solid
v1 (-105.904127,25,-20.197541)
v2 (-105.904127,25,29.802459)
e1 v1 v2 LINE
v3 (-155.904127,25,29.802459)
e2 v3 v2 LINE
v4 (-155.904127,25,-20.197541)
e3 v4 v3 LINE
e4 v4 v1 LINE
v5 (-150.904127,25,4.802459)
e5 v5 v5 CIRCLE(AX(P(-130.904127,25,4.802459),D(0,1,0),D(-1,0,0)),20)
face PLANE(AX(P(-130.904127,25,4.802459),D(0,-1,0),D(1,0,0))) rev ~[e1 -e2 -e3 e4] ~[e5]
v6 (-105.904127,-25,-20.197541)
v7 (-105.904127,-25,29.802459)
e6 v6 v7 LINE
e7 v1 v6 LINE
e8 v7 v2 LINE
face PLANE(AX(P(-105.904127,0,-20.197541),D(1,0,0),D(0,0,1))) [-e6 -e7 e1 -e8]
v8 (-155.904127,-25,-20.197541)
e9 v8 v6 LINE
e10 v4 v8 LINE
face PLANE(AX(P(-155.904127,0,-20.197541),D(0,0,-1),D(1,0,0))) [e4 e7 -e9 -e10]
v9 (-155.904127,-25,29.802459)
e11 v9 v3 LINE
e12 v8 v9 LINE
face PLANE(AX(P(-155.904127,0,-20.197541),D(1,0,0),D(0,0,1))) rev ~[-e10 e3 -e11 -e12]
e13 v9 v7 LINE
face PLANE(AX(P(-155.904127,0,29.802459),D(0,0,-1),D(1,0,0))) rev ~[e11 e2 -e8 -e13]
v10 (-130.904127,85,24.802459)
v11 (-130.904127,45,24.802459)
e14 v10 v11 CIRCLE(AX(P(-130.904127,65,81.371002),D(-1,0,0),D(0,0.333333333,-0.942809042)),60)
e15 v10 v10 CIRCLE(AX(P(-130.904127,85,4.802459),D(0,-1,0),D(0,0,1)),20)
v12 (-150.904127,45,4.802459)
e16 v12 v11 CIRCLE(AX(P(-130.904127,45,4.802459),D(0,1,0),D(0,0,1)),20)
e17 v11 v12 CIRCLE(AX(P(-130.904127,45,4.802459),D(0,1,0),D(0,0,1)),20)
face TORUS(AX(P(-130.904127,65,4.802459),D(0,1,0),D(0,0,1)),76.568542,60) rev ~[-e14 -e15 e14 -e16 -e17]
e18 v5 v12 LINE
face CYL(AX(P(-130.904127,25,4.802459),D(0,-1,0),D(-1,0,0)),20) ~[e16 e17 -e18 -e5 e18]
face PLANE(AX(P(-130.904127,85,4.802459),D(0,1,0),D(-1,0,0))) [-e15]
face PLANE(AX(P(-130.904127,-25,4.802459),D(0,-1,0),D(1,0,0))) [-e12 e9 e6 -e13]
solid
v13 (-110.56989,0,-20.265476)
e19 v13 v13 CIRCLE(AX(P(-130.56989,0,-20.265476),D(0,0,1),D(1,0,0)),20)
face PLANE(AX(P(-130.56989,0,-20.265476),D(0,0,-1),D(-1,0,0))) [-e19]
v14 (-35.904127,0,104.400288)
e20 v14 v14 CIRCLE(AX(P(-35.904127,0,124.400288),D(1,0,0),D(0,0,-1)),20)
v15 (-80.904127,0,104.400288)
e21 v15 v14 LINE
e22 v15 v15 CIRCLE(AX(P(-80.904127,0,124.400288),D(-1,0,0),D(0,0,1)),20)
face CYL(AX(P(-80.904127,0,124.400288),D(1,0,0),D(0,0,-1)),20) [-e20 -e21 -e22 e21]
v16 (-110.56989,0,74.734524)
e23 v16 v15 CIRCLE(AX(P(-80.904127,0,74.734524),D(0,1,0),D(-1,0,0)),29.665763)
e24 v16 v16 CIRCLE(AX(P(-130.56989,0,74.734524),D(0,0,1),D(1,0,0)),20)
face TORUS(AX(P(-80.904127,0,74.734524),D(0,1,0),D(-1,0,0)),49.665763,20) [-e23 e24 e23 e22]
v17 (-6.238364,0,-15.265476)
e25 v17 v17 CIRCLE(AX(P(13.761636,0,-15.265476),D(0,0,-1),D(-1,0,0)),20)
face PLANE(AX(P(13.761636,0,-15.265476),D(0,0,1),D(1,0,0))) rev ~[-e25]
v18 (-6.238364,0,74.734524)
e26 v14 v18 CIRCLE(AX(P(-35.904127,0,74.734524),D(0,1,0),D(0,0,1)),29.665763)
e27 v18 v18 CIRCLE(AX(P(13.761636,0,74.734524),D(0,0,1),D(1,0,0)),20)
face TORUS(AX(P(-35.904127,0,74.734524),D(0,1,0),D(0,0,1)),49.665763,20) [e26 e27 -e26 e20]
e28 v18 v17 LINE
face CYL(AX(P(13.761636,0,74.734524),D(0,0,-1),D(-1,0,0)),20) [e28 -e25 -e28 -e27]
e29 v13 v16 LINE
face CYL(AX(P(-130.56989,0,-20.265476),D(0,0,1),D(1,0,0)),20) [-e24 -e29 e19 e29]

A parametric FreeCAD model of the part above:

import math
import FreeCAD as App
import Part
import Sketcher
Q = App.Units.Quantity

doc = App.newDocument("Part")
body = doc.addObject("PartDesign::Body", "Body")

sketch1 = doc.addObject("Sketcher::SketchObject", "Sketch")
body.addObject(sketch1)
sketch1.AttachmentSupport = (doc.XZ_Plane, [""])
sketch1.MapMode = "FlatFace"
sketch1.addGeometry([
    Part.LineSegment(App.Vector(-156, 30, 0), App.Vector(-156, -20, 0)),
    Part.LineSegment(App.Vector(-156, -20, 0), App.Vector(-106, -20, 0)),
    Part.LineSegment(App.Vector(-106, -20, 0), App.Vector(-106, 30, 0)),
    Part.LineSegment(App.Vector(-106, 30, 0), App.Vector(-156, 30, 0)),
], False)
sketch1.addConstraint([
    Sketcher.Constraint("Coincident", 0, 2, 1, 1),
    Sketcher.Constraint("Coincident", 1, 2, 2, 1),
    Sketcher.Constraint("Coincident", 2, 2, 3, 1),
    Sketcher.Constraint("Coincident", 3, 2, 0, 1),
    Sketcher.Constraint("Vertical", 0),
    Sketcher.Constraint("Horizontal", 1),
    Sketcher.Constraint("Vertical", 2),
    Sketcher.Constraint("Horizontal", 3),
    Sketcher.Constraint("Equal", 3, 0),
    Sketcher.Constraint("DistanceX", 1, 1, 1, 2, Q("50 mm")),
    Sketcher.Constraint("DistanceY", 0, 2, -1, 1, Q("20.197541 mm")),
    Sketcher.Constraint("DistanceX", 0, 2, -1, 1, Q("155.904127 mm")),
])
pad1 = doc.addObject("PartDesign::Pad", "Pad")
body.addObject(pad1)
pad1.Profile = sketch1
pad1.Type = "TwoLengths"
pad1.Length = 25
pad1.Length2 = 25

sketch2 = doc.addObject("Sketcher::SketchObject", "Sketch001")
body.addObject(sketch2)
sketch2.AttachmentSupport = (doc.XZ_Plane, [""])
sketch2.MapMode = "FlatFace"
sketch2.AttachmentOffset = App.Placement(App.Vector(0, 0, -25), App.Rotation())
sketch2.addGeometry(Part.Circle(App.Vector(-131, 5, 0), App.Vector(0, 0, 1), 20), False)
sketch2.addConstraint([
    Sketcher.Constraint("Diameter", 0, Q("40 mm")),
    Sketcher.Constraint("DistanceY", -1, 1, 0, 3, Q("4.802459 mm")),
    Sketcher.Constraint("DistanceX", 0, 3, -1, 1, Q("130.904127 mm")),
])
pad2 = doc.addObject("PartDesign::Pad", "Pad001")
body.addObject(pad2)
pad2.Profile = sketch2
pad2.Length = 60
pad2.Reversed = True

sketch3 = doc.addObject("Sketcher::SketchObject", "Sketch002")
body.addObject(sketch3)
sketch3.AttachmentSupport = (doc.YZ_Plane, [""])
sketch3.MapMode = "FlatFace"
sketch3.AttachmentOffset = App.Placement(App.Vector(0, 0, -130.904127), App.Rotation())
sketch3.addGeometry([
    Part.LineSegment(App.Vector(45, 25, 0), App.Vector(85, 25, 0)),
    Part.ArcOfCircle(Part.Circle(App.Vector(65, 81, 0), App.Vector(0, 0, 1), 60), math.radians(-109), math.radians(-71)),
], False)
sketch3.addGeometry(Part.LineSegment(App.Vector(45, 5, 0), App.Vector(85, 5, 0)), True)
sketch3.addConstraint([
    Sketcher.Constraint("Coincident", 0, 1, 1, 1),
    Sketcher.Constraint("Coincident", 1, 2, 0, 2),
    Sketcher.Constraint("Horizontal", 0),
    Sketcher.Constraint("Horizontal", 2),
    Sketcher.Constraint("Vertical", 0, 1, 2, 1),
    Sketcher.Constraint("Vertical", 1, 2, 2, 2),
    Sketcher.Constraint("Radius", 1, Q("60 mm")),
    Sketcher.Constraint("DistanceX", 0, 1, 0, 2, Q("40 mm")),
    Sketcher.Constraint("DistanceX", -1, 1, 1, 3, Q("65 mm")),
    Sketcher.Constraint("DistanceY", 2, 1, 0, 1, Q("20 mm")),
    Sketcher.Constraint("DistanceY", -1, 1, 1, 3, Q("81.371002 mm")),
])
groove = doc.addObject("PartDesign::Groove", "Groove")
body.addObject(groove)
groove.Profile = sketch3
groove.ReferenceAxis = (sketch3, ["Axis0"])
groove.Angle = 360
body2 = doc.addObject("PartDesign::Body", "Body001")

sketch4 = doc.addObject("Sketcher::SketchObject", "Sketch003")
body2.addObject(sketch4)
sketch4.AttachmentSupport = (doc.getObject("XY_Plane001"), [""])
sketch4.MapMode = "FlatFace"
sketch4.AttachmentOffset = App.Placement(App.Vector(0, 0, -20.197541), App.Rotation())
sketch4.addGeometry(Part.Circle(App.Vector(-131, 0, 0), App.Vector(0, 0, 1), 20), False)
sketch4.addConstraint([
    Sketcher.Constraint("PointOnObject", 0, 3, -1),
    Sketcher.Constraint("Diameter", 0, Q("40 mm")),
    Sketcher.Constraint("DistanceX", 0, 3, -1, 1, Q("130.56989 mm")),
])

sketch5 = doc.addObject("Sketcher::SketchObject", "Sketch004")
body2.addObject(sketch5)
sketch5.AttachmentSupport = (doc.getObject("XZ_Plane001"), [""])
sketch5.MapMode = "FlatFace"
sketch5.addGeometry([
    Part.LineSegment(App.Vector(-131, -20, 0), App.Vector(-131, 75, 0)),
    Part.ArcOfCircle(Part.Circle(App.Vector(-81, 75, 0), App.Vector(0, 0, 1), 50), math.radians(90), math.radians(180)),
    Part.LineSegment(App.Vector(-81, 125, 0), App.Vector(-36, 125, 0)),
    Part.ArcOfCircle(Part.Circle(App.Vector(-36, 75, 0), App.Vector(0, 0, 1), 50), math.radians(0), math.radians(90)),
    Part.LineSegment(App.Vector(14, 75, 0), App.Vector(14, -15, 0)),
], False)
sketch5.addConstraint([
    Sketcher.Constraint("Tangent", 0, 2, 1, 2),
    Sketcher.Constraint("Tangent", 1, 1, 2, 1),
    Sketcher.Constraint("Tangent", 2, 2, 3, 2),
    Sketcher.Constraint("Tangent", 3, 1, 4, 1),
    Sketcher.Constraint("Vertical", 0),
    Sketcher.Constraint("Horizontal", 2),
    Sketcher.Constraint("Vertical", 4),
    Sketcher.Constraint("Equal", 1, 3),
    Sketcher.Constraint("Radius", 1, Q("50 mm")),
    Sketcher.Constraint("DistanceX", 2, 1, 2, 2, Q("45 mm")),
    Sketcher.Constraint("DistanceY", 0, 1, 0, 2, Q("95 mm")),
    Sketcher.Constraint("DistanceY", 4, 2, 4, 1, Q("90 mm")),
    Sketcher.Constraint("DistanceX", 1, 3, -1, 1, Q("80.904127 mm")),
    Sketcher.Constraint("DistanceY", -1, 1, 1, 3, Q("74.734524 mm")),
])
doc.recompute()

additivepipe = doc.addObject("PartDesign::AdditivePipe", "AdditivePipe")
body2.addObject(additivepipe)
additivepipe.Profile = sketch4
additivepipe.Spine = (sketch5, ["Edge1", "Edge2", "Edge3", "Edge4", "Edge5"])

doc.recompute()
